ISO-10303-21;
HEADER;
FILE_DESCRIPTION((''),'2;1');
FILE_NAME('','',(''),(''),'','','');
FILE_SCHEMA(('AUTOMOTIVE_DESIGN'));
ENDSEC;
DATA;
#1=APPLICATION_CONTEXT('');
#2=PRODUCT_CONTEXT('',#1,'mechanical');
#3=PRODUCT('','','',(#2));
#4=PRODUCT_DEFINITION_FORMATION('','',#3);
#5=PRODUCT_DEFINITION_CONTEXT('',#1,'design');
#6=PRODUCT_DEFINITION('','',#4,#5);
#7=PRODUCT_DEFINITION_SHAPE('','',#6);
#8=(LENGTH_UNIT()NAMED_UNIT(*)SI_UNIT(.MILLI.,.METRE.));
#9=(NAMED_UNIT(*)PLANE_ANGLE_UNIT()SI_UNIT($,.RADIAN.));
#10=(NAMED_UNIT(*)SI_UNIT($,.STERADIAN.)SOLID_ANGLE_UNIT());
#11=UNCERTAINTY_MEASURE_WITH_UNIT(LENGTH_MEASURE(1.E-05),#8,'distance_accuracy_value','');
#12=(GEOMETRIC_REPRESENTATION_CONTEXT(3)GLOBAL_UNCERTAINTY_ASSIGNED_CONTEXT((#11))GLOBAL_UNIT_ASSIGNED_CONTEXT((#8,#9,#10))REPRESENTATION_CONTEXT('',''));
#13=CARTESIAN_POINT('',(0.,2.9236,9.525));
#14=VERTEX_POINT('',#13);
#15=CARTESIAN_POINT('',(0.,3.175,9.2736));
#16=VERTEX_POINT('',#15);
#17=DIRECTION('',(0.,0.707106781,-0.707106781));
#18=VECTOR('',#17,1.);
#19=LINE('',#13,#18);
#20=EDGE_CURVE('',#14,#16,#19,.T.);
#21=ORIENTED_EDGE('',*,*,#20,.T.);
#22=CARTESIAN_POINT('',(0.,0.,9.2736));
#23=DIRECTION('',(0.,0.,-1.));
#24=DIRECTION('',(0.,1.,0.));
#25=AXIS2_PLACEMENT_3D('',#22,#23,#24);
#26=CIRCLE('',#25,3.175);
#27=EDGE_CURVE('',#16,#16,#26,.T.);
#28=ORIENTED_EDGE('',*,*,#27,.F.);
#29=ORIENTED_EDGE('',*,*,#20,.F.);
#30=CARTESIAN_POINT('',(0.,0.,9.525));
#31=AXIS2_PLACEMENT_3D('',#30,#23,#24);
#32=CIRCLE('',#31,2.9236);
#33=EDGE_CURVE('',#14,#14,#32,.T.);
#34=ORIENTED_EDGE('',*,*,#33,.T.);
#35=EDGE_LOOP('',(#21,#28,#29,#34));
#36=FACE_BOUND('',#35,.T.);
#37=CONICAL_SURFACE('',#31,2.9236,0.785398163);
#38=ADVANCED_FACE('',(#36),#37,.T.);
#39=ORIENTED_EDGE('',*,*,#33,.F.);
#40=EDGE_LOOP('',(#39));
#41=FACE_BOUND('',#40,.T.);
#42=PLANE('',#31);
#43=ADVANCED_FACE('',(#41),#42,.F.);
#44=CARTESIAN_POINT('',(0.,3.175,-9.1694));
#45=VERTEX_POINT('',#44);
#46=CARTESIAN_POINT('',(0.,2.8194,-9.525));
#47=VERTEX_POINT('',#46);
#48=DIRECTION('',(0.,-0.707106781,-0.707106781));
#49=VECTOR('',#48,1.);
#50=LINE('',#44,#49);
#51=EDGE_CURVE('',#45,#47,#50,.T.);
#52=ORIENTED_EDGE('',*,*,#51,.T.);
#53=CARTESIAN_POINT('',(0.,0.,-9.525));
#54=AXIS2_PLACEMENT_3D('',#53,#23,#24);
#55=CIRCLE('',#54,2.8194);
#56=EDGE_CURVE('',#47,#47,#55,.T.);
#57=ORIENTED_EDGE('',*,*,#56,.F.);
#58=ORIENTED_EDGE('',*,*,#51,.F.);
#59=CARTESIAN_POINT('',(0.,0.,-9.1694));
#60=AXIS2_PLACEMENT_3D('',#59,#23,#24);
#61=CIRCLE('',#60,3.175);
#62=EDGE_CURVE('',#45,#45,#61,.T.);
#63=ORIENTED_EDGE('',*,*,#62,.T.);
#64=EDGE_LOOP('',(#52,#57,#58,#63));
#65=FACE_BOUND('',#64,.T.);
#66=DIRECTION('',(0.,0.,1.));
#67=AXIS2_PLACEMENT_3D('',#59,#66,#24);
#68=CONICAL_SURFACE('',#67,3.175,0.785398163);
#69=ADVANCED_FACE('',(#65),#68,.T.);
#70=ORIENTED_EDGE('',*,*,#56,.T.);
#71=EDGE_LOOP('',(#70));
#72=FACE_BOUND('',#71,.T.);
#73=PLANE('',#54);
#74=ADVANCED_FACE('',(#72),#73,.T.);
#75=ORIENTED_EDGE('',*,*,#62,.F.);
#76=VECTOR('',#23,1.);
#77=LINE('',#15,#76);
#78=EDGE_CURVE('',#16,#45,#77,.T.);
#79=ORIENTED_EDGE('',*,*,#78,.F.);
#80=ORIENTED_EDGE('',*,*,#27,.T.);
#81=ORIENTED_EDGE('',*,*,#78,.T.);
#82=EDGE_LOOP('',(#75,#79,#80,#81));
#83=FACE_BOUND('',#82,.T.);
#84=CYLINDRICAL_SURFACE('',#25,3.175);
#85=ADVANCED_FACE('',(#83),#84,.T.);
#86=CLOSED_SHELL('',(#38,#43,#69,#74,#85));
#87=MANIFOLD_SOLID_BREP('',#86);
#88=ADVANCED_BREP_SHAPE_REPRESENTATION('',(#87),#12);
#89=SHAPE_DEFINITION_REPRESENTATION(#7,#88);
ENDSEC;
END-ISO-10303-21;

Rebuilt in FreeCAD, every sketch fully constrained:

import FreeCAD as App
import Part
import Sketcher

V = App.Vector
Q = App.Units.Quantity


def add_polygon(sketch, points):
    """Adds a closed chain of lines whose ends are joined by coincident constraints."""
    first, n = sketch.GeometryCount, len(points)
    for a, b in zip(points, points[1:] + points[:1]):
        sketch.addGeometry(Part.LineSegment(App.Vector(*a, 0), App.Vector(*b, 0)), False)
    for i in range(n):
        sketch.addConstraint(Sketcher.Constraint("Coincident", first + i, 2, first + (i + 1) % n, 1))

doc = App.newDocument("Part")
body = doc.addObject("PartDesign::Body", "Body")

sketch1 = body.newObject("Sketcher::SketchObject", "Sketch")
sketch1.AttachmentSupport = (doc.getObject("YZ_Plane"), [""])
sketch1.MapMode = "FlatFace"
add_polygon(sketch1, [(0, 9.53), (0, -9.53), (2.82, -9.53), (3.17, -9.17), (3.17, 9.27), (2.92, 9.53)])
sketch1.addConstraint(Sketcher.Constraint("Vertical", 0))
sketch1.addConstraint(Sketcher.Constraint("Horizontal", 1))
sketch1.addConstraint(Sketcher.Constraint("Vertical", 3))
sketch1.addConstraint(Sketcher.Constraint("Horizontal", 5))
sketch1.addConstraint(Sketcher.Constraint("Symmetric", 0, 2, 5, 2, -1, 1))
sketch1.addConstraint(Sketcher.Constraint("Perpendicular", 2, 4))
sketch1.addConstraint(Sketcher.Constraint("Angle", 2, Q("45 deg")))
sketch1.addConstraint(Sketcher.Constraint("DistanceY", 0, 2, 0, 1, Q("0.75 in")))
sketch1.addConstraint(Sketcher.Constraint("DistanceX", 1, 1, 1, 2, Q("0.111 in")))
sketch1.addConstraint(Sketcher.Constraint("Distance", 4, Q("0.014 in")))
sketch1.addConstraint(Sketcher.Constraint("DistanceX", 5, 2, 5, 1, Q("0.1151 in")))
revolution = body.newObject("PartDesign::Revolution", "Revolution")
revolution.Profile = sketch1
revolution.ReferenceAxis = (sketch1, ["V_Axis"])
revolution.Angle = 360

doc.recompute()
